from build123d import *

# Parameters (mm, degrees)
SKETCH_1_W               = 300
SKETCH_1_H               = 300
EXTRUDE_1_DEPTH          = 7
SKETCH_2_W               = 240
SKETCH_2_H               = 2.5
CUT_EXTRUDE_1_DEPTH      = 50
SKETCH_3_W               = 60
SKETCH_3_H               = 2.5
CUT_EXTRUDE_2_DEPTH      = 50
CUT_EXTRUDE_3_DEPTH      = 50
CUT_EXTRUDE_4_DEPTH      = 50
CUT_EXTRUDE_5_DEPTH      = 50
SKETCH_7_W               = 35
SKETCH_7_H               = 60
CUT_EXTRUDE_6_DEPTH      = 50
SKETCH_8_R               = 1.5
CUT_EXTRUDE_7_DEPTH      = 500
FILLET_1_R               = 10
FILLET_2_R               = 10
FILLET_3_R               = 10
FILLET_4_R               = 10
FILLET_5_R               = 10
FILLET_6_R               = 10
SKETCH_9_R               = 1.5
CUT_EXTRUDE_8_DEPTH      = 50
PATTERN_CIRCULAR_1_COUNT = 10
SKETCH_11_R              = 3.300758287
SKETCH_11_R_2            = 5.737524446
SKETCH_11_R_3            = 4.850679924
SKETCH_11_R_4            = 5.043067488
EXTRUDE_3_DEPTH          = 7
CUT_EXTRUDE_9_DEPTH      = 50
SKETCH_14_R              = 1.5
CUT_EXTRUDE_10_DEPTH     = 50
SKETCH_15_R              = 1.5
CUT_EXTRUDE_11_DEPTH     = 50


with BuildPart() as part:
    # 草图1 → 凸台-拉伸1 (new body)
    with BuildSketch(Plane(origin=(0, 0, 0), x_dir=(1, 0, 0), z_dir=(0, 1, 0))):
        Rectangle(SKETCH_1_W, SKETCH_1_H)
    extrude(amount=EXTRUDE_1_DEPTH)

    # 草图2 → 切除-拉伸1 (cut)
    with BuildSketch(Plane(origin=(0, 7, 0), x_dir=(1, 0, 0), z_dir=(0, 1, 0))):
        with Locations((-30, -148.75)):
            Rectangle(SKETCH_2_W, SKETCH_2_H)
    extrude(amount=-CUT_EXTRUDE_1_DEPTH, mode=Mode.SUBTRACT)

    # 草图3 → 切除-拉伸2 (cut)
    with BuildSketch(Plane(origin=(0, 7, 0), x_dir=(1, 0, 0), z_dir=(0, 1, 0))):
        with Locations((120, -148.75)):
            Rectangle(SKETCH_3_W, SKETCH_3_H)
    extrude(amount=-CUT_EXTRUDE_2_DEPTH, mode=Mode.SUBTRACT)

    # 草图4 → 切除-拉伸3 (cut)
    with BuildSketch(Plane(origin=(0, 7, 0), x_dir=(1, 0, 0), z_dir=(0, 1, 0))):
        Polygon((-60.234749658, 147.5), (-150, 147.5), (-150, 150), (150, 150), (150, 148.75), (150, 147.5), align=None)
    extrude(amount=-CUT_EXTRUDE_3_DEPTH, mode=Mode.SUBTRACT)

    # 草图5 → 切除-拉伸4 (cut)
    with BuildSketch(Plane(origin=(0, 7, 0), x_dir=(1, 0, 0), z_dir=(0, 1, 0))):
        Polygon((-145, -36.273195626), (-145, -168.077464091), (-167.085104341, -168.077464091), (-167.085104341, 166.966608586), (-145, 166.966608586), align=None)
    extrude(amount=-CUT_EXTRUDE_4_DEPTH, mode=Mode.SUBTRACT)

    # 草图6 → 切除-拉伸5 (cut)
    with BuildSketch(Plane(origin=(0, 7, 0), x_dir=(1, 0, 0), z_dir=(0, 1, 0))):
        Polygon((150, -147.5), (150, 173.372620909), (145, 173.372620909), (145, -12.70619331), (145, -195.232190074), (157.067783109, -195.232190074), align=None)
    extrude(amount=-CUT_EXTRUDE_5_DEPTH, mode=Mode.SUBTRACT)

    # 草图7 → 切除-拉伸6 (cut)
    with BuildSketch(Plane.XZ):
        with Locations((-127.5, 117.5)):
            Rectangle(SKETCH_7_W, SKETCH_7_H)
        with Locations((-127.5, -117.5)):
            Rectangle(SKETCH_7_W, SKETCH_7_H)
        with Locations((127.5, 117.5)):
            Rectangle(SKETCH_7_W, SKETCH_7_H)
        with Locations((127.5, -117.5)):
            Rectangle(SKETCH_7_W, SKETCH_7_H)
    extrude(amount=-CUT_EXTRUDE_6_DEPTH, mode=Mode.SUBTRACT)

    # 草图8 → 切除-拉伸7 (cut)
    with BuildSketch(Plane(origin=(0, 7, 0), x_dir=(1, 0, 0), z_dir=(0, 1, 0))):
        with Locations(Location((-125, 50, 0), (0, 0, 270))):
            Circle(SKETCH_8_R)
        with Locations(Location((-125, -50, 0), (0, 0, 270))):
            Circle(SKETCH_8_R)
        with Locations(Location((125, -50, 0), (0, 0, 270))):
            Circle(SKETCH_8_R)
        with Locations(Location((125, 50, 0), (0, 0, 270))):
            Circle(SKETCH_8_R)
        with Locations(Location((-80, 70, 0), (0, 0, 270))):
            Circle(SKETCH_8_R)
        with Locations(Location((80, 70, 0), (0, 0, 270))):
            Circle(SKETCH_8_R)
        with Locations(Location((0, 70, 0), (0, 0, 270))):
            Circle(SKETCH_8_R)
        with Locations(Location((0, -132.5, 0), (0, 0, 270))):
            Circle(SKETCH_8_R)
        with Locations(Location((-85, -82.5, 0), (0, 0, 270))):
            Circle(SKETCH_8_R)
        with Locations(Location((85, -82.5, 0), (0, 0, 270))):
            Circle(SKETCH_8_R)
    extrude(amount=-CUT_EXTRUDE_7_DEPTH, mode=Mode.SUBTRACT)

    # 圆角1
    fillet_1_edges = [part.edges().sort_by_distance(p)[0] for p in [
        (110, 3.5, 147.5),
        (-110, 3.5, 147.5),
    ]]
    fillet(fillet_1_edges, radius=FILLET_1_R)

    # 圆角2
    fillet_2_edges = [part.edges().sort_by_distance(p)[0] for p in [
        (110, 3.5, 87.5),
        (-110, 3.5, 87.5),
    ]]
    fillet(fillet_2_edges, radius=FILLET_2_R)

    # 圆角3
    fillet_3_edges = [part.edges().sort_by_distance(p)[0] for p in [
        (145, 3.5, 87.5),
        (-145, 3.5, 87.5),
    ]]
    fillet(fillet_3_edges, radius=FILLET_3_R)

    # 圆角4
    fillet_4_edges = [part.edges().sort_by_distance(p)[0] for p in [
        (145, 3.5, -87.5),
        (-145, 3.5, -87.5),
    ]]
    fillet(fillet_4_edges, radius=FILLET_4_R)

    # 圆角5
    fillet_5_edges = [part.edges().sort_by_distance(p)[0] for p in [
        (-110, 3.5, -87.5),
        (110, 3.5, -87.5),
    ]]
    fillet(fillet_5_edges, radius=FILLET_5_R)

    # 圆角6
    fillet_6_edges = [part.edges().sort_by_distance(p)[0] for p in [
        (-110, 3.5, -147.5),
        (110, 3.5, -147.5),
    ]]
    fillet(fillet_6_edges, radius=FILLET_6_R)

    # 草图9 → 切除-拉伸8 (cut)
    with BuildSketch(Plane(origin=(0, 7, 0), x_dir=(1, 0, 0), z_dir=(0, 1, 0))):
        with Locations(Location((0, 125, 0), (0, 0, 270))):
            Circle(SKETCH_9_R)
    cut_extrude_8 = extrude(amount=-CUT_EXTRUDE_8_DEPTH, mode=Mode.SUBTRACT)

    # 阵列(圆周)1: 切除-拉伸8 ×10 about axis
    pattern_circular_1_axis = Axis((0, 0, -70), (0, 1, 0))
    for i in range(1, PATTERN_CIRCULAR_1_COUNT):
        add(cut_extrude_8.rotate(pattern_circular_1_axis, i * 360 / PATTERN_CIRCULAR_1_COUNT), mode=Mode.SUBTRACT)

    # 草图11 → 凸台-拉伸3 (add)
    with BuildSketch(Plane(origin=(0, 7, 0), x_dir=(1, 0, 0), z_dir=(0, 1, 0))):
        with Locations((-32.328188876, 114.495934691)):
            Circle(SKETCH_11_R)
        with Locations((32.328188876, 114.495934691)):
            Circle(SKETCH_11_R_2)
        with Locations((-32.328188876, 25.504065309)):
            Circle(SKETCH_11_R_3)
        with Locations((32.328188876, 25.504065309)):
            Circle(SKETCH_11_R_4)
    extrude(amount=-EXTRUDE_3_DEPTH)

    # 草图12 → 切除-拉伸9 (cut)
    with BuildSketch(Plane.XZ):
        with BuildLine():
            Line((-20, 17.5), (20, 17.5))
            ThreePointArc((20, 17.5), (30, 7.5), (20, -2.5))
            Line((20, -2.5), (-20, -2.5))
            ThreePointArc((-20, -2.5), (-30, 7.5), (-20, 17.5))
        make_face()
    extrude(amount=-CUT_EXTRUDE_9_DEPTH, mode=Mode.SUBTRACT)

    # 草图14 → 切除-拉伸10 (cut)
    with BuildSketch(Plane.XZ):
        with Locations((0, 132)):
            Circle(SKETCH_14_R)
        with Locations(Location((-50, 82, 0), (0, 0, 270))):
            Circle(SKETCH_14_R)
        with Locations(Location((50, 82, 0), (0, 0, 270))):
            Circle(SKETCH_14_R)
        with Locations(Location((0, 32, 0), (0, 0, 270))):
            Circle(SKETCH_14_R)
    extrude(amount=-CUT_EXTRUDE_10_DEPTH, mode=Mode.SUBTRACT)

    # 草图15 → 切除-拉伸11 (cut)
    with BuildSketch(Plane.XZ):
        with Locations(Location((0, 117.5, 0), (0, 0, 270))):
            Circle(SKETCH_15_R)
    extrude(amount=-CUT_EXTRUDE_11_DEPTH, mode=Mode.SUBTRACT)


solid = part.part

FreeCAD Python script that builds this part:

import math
import FreeCAD as App
import Part
import Sketcher
Q = App.Units.Quantity


def edges_at(feature, points):
    """Names of the edges that pass closest to the given points."""
    edges = feature.Shape.Edges
    near = lambda p: min(range(len(edges)), key=lambda i: edges[i].distToShape(Part.Vertex(*p))[0])
    return sorted({f"Edge{near(p) + 1}" for p in points})

doc = App.newDocument("Part")
body = doc.addObject("PartDesign::Body", "Body")

# Sketch on XZ plane
sketch1 = doc.addObject("Sketcher::SketchObject", "Sketch")
body.addObject(sketch1)
sketch1.AttachmentSupport = (doc.XZ_Plane, [""])
sketch1.MapMode = "FlatFace"
sketch1.addGeometry([
    Part.LineSegment(App.Vector(-150, -150, 0), App.Vector(-150, 150, 0)),
    Part.LineSegment(App.Vector(-150, 150, 0), App.Vector(150, 150, 0)),
    Part.LineSegment(App.Vector(150, 150, 0), App.Vector(150, -150, 0)),
    Part.LineSegment(App.Vector(150, -150, 0), App.Vector(-150, -150, 0)),
], False)
sketch1.addConstraint([
    Sketcher.Constraint("Coincident", 0, 2, 1, 1),
    Sketcher.Constraint("Coincident", 1, 2, 2, 1),
    Sketcher.Constraint("Coincident", 2, 2, 3, 1),
    Sketcher.Constraint("Coincident", 3, 2, 0, 1),
    Sketcher.Constraint("Vertical", 0),
    Sketcher.Constraint("Horizontal", 1),
    Sketcher.Constraint("Vertical", 2),
    Sketcher.Constraint("Horizontal", 3),
    Sketcher.Constraint("Symmetric", 0, 2, 2, 2, -1, 1),
    Sketcher.Constraint("Equal", 3, 0),
    Sketcher.Constraint("DistanceX", 1, 1, 1, 2, Q("300 mm")),
])
pad1 = doc.addObject("PartDesign::Pad", "Pad")
body.addObject(pad1)
pad1.Profile = sketch1
pad1.Length = 7
pad1.Reversed = True

# Sketch on XZ plane
sketch2 = doc.addObject("Sketcher::SketchObject", "Sketch001")
body.addObject(sketch2)
sketch2.AttachmentSupport = (doc.XZ_Plane, [""])
sketch2.MapMode = "FlatFace"
sketch2.AttachmentOffset = App.Placement(App.Vector(0, 0, -7), App.Rotation())
sketch2.addGeometry([
    Part.LineSegment(App.Vector(-150, 147.5, 0), App.Vector(-150, 150, 0)),
    Part.LineSegment(App.Vector(-150, 150, 0), App.Vector(90, 150, 0)),
    Part.LineSegment(App.Vector(90, 150, 0), App.Vector(90, 147.5, 0)),
    Part.LineSegment(App.Vector(90, 147.5, 0), App.Vector(-150, 147.5, 0)),
], False)
sketch2.addConstraint([
    Sketcher.Constraint("Coincident", 0, 2, 1, 1),
    Sketcher.Constraint("Coincident", 1, 2, 2, 1),
    Sketcher.Constraint("Coincident", 2, 2, 3, 1),
    Sketcher.Constraint("Coincident", 3, 2, 0, 1),
    Sketcher.Constraint("Vertical", 0),
    Sketcher.Constraint("Horizontal", 1),
    Sketcher.Constraint("Vertical", 2),
    Sketcher.Constraint("Horizontal", 3),
    Sketcher.Constraint("DistanceX", 1, 1, 1, 2, Q("240 mm")),
    Sketcher.Constraint("DistanceY", 0, 1, 0, 2, Q("2.5 mm")),
    Sketcher.Constraint("DistanceX", 0, 2, -1, 1, Q("150 mm")),
    Sketcher.Constraint("DistanceY", -1, 1, 0, 2, Q("150 mm")),
])
pocket1 = doc.addObject("PartDesign::Pocket", "Pocket")
body.addObject(pocket1)
pocket1.Profile = sketch2
pocket1.Length = 50
pocket1.Reversed = True

# Sketch on XZ plane
sketch3 = doc.addObject("Sketcher::SketchObject", "Sketch002")
body.addObject(sketch3)
sketch3.AttachmentSupport = (doc.XZ_Plane, [""])
sketch3.MapMode = "FlatFace"
sketch3.AttachmentOffset = App.Placement(App.Vector(0, 0, -7), App.Rotation())
sketch3.addGeometry([
    Part.LineSegment(App.Vector(90, 147.5, 0), App.Vector(90, 150, 0)),
    Part.LineSegment(App.Vector(90, 150, 0), App.Vector(150, 150, 0)),
    Part.LineSegment(App.Vector(150, 150, 0), App.Vector(150, 147.5, 0)),
    Part.LineSegment(App.Vector(150, 147.5, 0), App.Vector(90, 147.5, 0)),
], False)
sketch3.addConstraint([
    Sketcher.Constraint("Coincident", 0, 2, 1, 1),
    Sketcher.Constraint("Coincident", 1, 2, 2, 1),
    Sketcher.Constraint("Coincident", 2, 2, 3, 1),
    Sketcher.Constraint("Coincident", 3, 2, 0, 1),
    Sketcher.Constraint("Vertical", 0),
    Sketcher.Constraint("Horizontal", 1),
    Sketcher.Constraint("Vertical", 2),
    Sketcher.Constraint("Horizontal", 3),
    Sketcher.Constraint("DistanceX", 1, 1, 1, 2, Q("60 mm")),
    Sketcher.Constraint("DistanceY", 0, 1, 0, 2, Q("2.5 mm")),
    Sketcher.Constraint("DistanceX", -1, 1, 0, 2, Q("90 mm")),
    Sketcher.Constraint("DistanceY", -1, 1, 0, 2, Q("150 mm")),
])
pocket2 = doc.addObject("PartDesign::Pocket", "Pocket001")
body.addObject(pocket2)
pocket2.Profile = sketch3
pocket2.Length = 50
pocket2.Reversed = True

# Sketch on XZ plane
sketch4 = doc.addObject("Sketcher::SketchObject", "Sketch003")
body.addObject(sketch4)
sketch4.AttachmentSupport = (doc.XZ_Plane, [""])
sketch4.MapMode = "FlatFace"
sketch4.AttachmentOffset = App.Placement(App.Vector(0, 0, -7), App.Rotation())
sketch4.addGeometry([
    Part.LineSegment(App.Vector(-150, -147.5, 0), App.Vector(150, -147.5, 0)),
    Part.LineSegment(App.Vector(150, -147.5, 0), App.Vector(150, -150, 0)),
    Part.LineSegment(App.Vector(150, -150, 0), App.Vector(-150, -150, 0)),
    Part.LineSegment(App.Vector(-150, -150, 0), App.Vector(-150, -147.5, 0)),
], False)
sketch4.addConstraint([
    Sketcher.Constraint("Coincident", 0, 2, 1, 1),
    Sketcher.Constraint("Coincident", 1, 2, 2, 1),
    Sketcher.Constraint("Coincident", 2, 2, 3, 1),
    Sketcher.Constraint("Coincident", 3, 2, 0, 1),
    Sketcher.Constraint("Horizontal", 0),
    Sketcher.Constraint("Vertical", 1),
    Sketcher.Constraint("Horizontal", 2),
    Sketcher.Constraint("Vertical", 3),
    Sketcher.Constraint("DistanceX", 0, 1, 0, 2, Q("300 mm")),
    Sketcher.Constraint("DistanceY", 1, 2, 1, 1, Q("2.5 mm")),
    Sketcher.Constraint("DistanceX", -1, 1, 0, 2, Q("150 mm")),
    Sketcher.Constraint("DistanceY", 1, 2, -1, 1, Q("150 mm")),
])
pocket3 = doc.addObject("PartDesign::Pocket", "Pocket002")
body.addObject(pocket3)
pocket3.Profile = sketch4
pocket3.Length = 50
pocket3.Reversed = True

# Sketch on XZ plane
sketch5 = doc.addObject("Sketcher::SketchObject", "Sketch004")
body.addObject(sketch5)
sketch5.AttachmentSupport = (doc.XZ_Plane, [""])
sketch5.MapMode = "FlatFace"
sketch5.AttachmentOffset = App.Placement(App.Vector(0, 0, -7), App.Rotation())
sketch5.addGeometry([
    Part.LineSegment(App.Vector(-145, 168.077464, 0), App.Vector(-145, -166.966609, 0)),
    Part.LineSegment(App.Vector(-145, -166.966609, 0), App.Vector(-167.085104, -166.966609, 0)),
    Part.LineSegment(App.Vector(-167.085104, -166.966609, 0), App.Vector(-167.085104, 168.077464, 0)),
    Part.LineSegment(App.Vector(-167.085104, 168.077464, 0), App.Vector(-145, 168.077464, 0)),
], False)
sketch5.addConstraint([
    Sketcher.Constraint("Coincident", 0, 2, 1, 1),
    Sketcher.Constraint("Coincident", 1, 2, 2, 1),
    Sketcher.Constraint("Coincident", 2, 2, 3, 1),
    Sketcher.Constraint("Coincident", 3, 2, 0, 1),
    Sketcher.Constraint("Vertical", 0),
    Sketcher.Constraint("Horizontal", 1),
    Sketcher.Constraint("Vertical", 2),
    Sketcher.Constraint("Horizontal", 3),
    Sketcher.Constraint("DistanceX", 0, 2, -1, 1, Q("145 mm")),
    Sketcher.Constraint("DistanceX", 1, 2, 1, 1, Q("22.085104 mm")),
    Sketcher.Constraint("DistanceY", 0, 2, 0, 1, Q("335.044073 mm")),
    Sketcher.Constraint("DistanceY", 0, 2, -1, 1, Q("166.966609 mm")),
])
pocket4 = doc.addObject("PartDesign::Pocket", "Pocket003")
body.addObject(pocket4)
pocket4.Profile = sketch5
pocket4.Length = 50
pocket4.Reversed = True

# Sketch on XZ plane
sketch6 = doc.addObject("Sketcher::SketchObject", "Sketch005")
body.addObject(sketch6)
sketch6.AttachmentSupport = (doc.XZ_Plane, [""])
sketch6.MapMode = "FlatFace"
sketch6.AttachmentOffset = App.Placement(App.Vector(0, 0, -7), App.Rotation())
sketch6.addGeometry([
    Part.LineSegment(App.Vector(150, 147.5, 0), App.Vector(150, -173.372621, 0)),  # 0
    Part.LineSegment(App.Vector(150, -173.372621, 0), App.Vector(145, -173.372621, 0)),  # 1
    Part.LineSegment(App.Vector(145, -173.372621, 0), App.Vector(145, 195.23219, 0)),  # 2
    Part.LineSegment(App.Vector(145, 195.23219, 0), App.Vector(157.067783, 195.23219, 0)),  # 3
    Part.LineSegment(App.Vector(157.067783, 195.23219, 0), App.Vector(150, 147.5, 0)),  # 4
], False)
sketch6.addConstraint([
    Sketcher.Constraint("Coincident", 0, 2, 1, 1),
    Sketcher.Constraint("Coincident", 1, 2, 2, 1),
    Sketcher.Constraint("Coincident", 2, 2, 3, 1),
    Sketcher.Constraint("Coincident", 3, 2, 4, 1),
    Sketcher.Constraint("Coincident", 4, 2, 0, 1),
    Sketcher.Constraint("Vertical", 0),
    Sketcher.Constraint("Horizontal", 1),
    Sketcher.Constraint("Vertical", 2),
    Sketcher.Constraint("Horizontal", 3),
    Sketcher.Constraint("DistanceX", 1, 2, 1, 1, Q("5 mm")),
    Sketcher.Constraint("DistanceX", -1, 1, 0, 2, Q("150 mm")),
    Sketcher.Constraint("DistanceY", -1, 1, 4, 2, Q("147.5 mm")),
    Sketcher.Constraint("DistanceY", 0, 2, 0, 1, Q("320.872621 mm")),
    Sketcher.Constraint("DistanceY", 2, 1, 2, 2, Q("368.604811 mm")),
    Sketcher.Constraint("Distance", 4, Q("48.252622 mm")),
])
pocket5 = doc.addObject("PartDesign::Pocket", "Pocket004")
body.addObject(pocket5)
pocket5.Profile = sketch6
pocket5.Length = 50
pocket5.Reversed = True

# Sketch on XZ plane
sketch7 = doc.addObject("Sketcher::SketchObject", "Sketch006")
body.addObject(sketch7)
sketch7.AttachmentSupport = (doc.XZ_Plane, [""])
sketch7.MapMode = "FlatFace"
sketch7.addGeometry([
    Part.LineSegment(App.Vector(-145, 147.5, 0), App.Vector(-145, 87.5, 0)),  # 0
    Part.LineSegment(App.Vector(-145, 87.5, 0), App.Vector(-110, 87.5, 0)),  # 1
    Part.LineSegment(App.Vector(-110, 87.5, 0), App.Vector(-110, 147.5, 0)),  # 2
    Part.LineSegment(App.Vector(-110, 147.5, 0), App.Vector(-145, 147.5, 0)),  # 3
    Part.LineSegment(App.Vector(-145, -87.5, 0), App.Vector(-145, -147.5, 0)),  # 4
    Part.LineSegment(App.Vector(-145, -147.5, 0), App.Vector(-110, -147.5, 0)),  # 5
    Part.LineSegment(App.Vector(-110, -147.5, 0), App.Vector(-110, -87.5, 0)),  # 6
    Part.LineSegment(App.Vector(-110, -87.5, 0), App.Vector(-145, -87.5, 0)),  # 7
    Part.LineSegment(App.Vector(110, 147.5, 0), App.Vector(110, 87.5, 0)),  # 8
    Part.LineSegment(App.Vector(110, 87.5, 0), App.Vector(145, 87.5, 0)),  # 9
    Part.LineSegment(App.Vector(145, 87.5, 0), App.Vector(145, 147.5, 0)),  # 10
    Part.LineSegment(App.Vector(145, 147.5, 0), App.Vector(110, 147.5, 0)),  # 11
    Part.LineSegment(App.Vector(110, -87.5, 0), App.Vector(110, -147.5, 0)),  # 12
    Part.LineSegment(App.Vector(110, -147.5, 0), App.Vector(145, -147.5, 0)),  # 13
    Part.LineSegment(App.Vector(145, -147.5, 0), App.Vector(145, -87.5, 0)),  # 14
    Part.LineSegment(App.Vector(145, -87.5, 0), App.Vector(110, -87.5, 0)),  # 15
], False)
sketch7.addConstraint([
    Sketcher.Constraint("Coincident", 0, 2, 1, 1),
    Sketcher.Constraint("Coincident", 1, 2, 2, 1),
    Sketcher.Constraint("Coincident", 2, 2, 3, 1),
    Sketcher.Constraint("Coincident", 3, 2, 0, 1),
    Sketcher.Constraint("Coincident", 4, 2, 5, 1),
    Sketcher.Constraint("Coincident", 5, 2, 6, 1),
    Sketcher.Constraint("Coincident", 6, 2, 7, 1),
    Sketcher.Constraint("Coincident", 7, 2, 4, 1),
    Sketcher.Constraint("Coincident", 8, 2, 9, 1),
    Sketcher.Constraint("Coincident", 9, 2, 10, 1),
    Sketcher.Constraint("Coincident", 10, 2, 11, 1),
    Sketcher.Constraint("Coincident", 11, 2, 8, 1),
    Sketcher.Constraint("Coincident", 12, 2, 13, 1),
    Sketcher.Constraint("Coincident", 13, 2, 14, 1),
    Sketcher.Constraint("Coincident", 14, 2, 15, 1),
    Sketcher.Constraint("Coincident", 15, 2, 12, 1),
    Sketcher.Constraint("Vertical", 0),
    Sketcher.Constraint("Horizontal", 1),
    Sketcher.Constraint("Vertical", 2),
    Sketcher.Constraint("Horizontal", 3),
    Sketcher.Constraint("Vertical", 4),
    Sketcher.Constraint("Horizontal", 5),
    Sketcher.Constraint("Vertical", 6),
    Sketcher.Constraint("Horizontal", 7),
    Sketcher.Constraint("Vertical", 8),
    Sketcher.Constraint("Horizontal", 9),
    Sketcher.Constraint("Vertical", 10),
    Sketcher.Constraint("Horizontal", 11),
    Sketcher.Constraint("Vertical", 12),
    Sketcher.Constraint("Horizontal", 13),
    Sketcher.Constraint("Vertical", 14),
    Sketcher.Constraint("Horizontal", 15),
    Sketcher.Constraint("Symmetric", 6, 2, 8, 2, -1, 1),
    Sketcher.Constraint("Symmetric", 4, 2, 10, 2, -1, 1),
    Sketcher.Constraint("Symmetric", 2, 2, 12, 2, -1, 1),
    Sketcher.Constraint("Symmetric", 0, 2, 14, 2, -1, 1),
    Sketcher.Constraint("Symmetric", 1, 2, 8, 2, -2),
    Sketcher.Constraint("Symmetric", 3, 2, 10, 2, -2),
    Sketcher.Constraint("DistanceX", 1, 1, 1, 2, Q("35 mm")),
    Sketcher.Constraint("DistanceY", 0, 2, 0, 1, Q("60 mm")),
    Sketcher.Constraint("DistanceX", 0, 2, -1, 1, Q("145 mm")),
    Sketcher.Constraint("DistanceY", 4, 2, 0, 2, Q("235 mm")),
])
pocket6 = doc.addObject("PartDesign::Pocket", "Pocket005")
body.addObject(pocket6)
pocket6.Profile = sketch7
pocket6.Length = 50

# Sketch on XZ plane
sketch8 = doc.addObject("Sketcher::SketchObject", "Sketch007")
body.addObject(sketch8)
sketch8.AttachmentSupport = (doc.XZ_Plane, [""])
sketch8.MapMode = "FlatFace"
sketch8.AttachmentOffset = App.Placement(App.Vector(0, 0, -7), App.Rotation())
sketch8.addGeometry([
    Part.Circle(App.Vector(-125, -50, 0), App.Vector(0, 0, 1), 1.5),  # 0
    Part.Circle(App.Vector(-125, 50, 0), App.Vector(0, 0, 1), 1.5),  # 1
    Part.Circle(App.Vector(125, 50, 0), App.Vector(0, 0, 1), 1.5),  # 2
    Part.Circle(App.Vector(125, -50, 0), App.Vector(0, 0, 1), 1.5),  # 3
    Part.Circle(App.Vector(-80, -70, 0), App.Vector(0, 0, 1), 1.5),  # 4
    Part.Circle(App.Vector(80, -70, 0), App.Vector(0, 0, 1), 1.5),  # 5
    Part.Circle(App.Vector(0, -70, 0), App.Vector(0, 0, 1), 1.5),  # 6
    Part.Circle(App.Vector(0, 132.5, 0), App.Vector(0, 0, 1), 1.5),  # 7
    Part.Circle(App.Vector(-85, 82.5, 0), App.Vector(0, 0, 1), 1.5),  # 8
    Part.Circle(App.Vector(85, 82.5, 0), App.Vector(0, 0, 1), 1.5),  # 9
], False)
sketch8.addConstraint([
    Sketcher.Constraint("Equal", 0, 1),
    Sketcher.Constraint("Equal", 1, 2),
    Sketcher.Constraint("Equal", 2, 3),
    Sketcher.Constraint("Equal", 3, 4),
    Sketcher.Constraint("Equal", 4, 5),
    Sketcher.Constraint("Equal", 5, 6),
    Sketcher.Constraint("Equal", 6, 7),
    Sketcher.Constraint("Equal", 7, 8),
    Sketcher.Constraint("Equal", 8, 9),
    Sketcher.Constraint("Symmetric", 0, 3, 2, 3, -1, 1),
    Sketcher.Constraint("Symmetric", 1, 3, 3, 3, -1, 1),
    Sketcher.Constraint("Symmetric", 1, 3, 2, 3, -2),
    Sketcher.Constraint("Symmetric", 4, 3, 5, 3, -2),
    Sketcher.Constraint("Symmetric", 8, 3, 9, 3, -2),
    Sketcher.Constraint("PointOnObject", 6, 3, -2),
    Sketcher.Constraint("PointOnObject", 7, 3, -2),
    Sketcher.Constraint("Horizontal", 5, 3, 6, 3),
    Sketcher.Constraint("Diameter", 0, Q("3 mm")),
    Sketcher.Constraint("DistanceX", 0, 3, -1, 1, Q("125 mm")),
    Sketcher.Constraint("DistanceY", 0, 3, -1, 1, Q("50 mm")),
    Sketcher.Constraint("DistanceX", 4, 3, -1, 1, Q("80 mm")),
    Sketcher.Constraint("DistanceY", 4, 3, -1, 1, Q("70 mm")),
    Sketcher.Constraint("DistanceX", 8, 3, -1, 1, Q("85 mm")),
    Sketcher.Constraint("DistanceY", 8, 3, 7, 3, Q("50 mm")),
    Sketcher.Constraint("DistanceY", -1, 1, 7, 3, Q("132.5 mm")),
])
pocket7 = doc.addObject("PartDesign::Pocket", "Pocket006")
body.addObject(pocket7)
pocket7.Profile = sketch8
pocket7.Length = 500
pocket7.Reversed = True
doc.recompute()

fillet = doc.addObject("PartDesign::Fillet", "Fillet")
body.addObject(fillet)
fillet.Base = (pocket7, edges_at(pocket7, [(110, 3.5, 147.5), (-110, 3.5, 147.5)]))
fillet.Radius = 10
doc.recompute()

fillet2 = doc.addObject("PartDesign::Fillet", "Fillet001")
body.addObject(fillet2)
fillet2.Base = (fillet, edges_at(fillet, [(110, 3.5, 87.5), (-110, 3.5, 87.5)]))
fillet2.Radius = 10
doc.recompute()

fillet3 = doc.addObject("PartDesign::Fillet", "Fillet002")
body.addObject(fillet3)
fillet3.Base = (fillet2, edges_at(fillet2, [(145, 3.5, 87.5), (-145, 3.5, 87.5)]))
fillet3.Radius = 10
doc.recompute()

fillet4 = doc.addObject("PartDesign::Fillet", "Fillet003")
body.addObject(fillet4)
fillet4.Base = (fillet3, edges_at(fillet3, [(145, 3.5, -87.5), (-145, 3.5, -87.5)]))
fillet4.Radius = 10
doc.recompute()

fillet5 = doc.addObject("PartDesign::Fillet", "Fillet004")
body.addObject(fillet5)
fillet5.Base = (fillet4, edges_at(fillet4, [(-110, 3.5, -87.5), (110, 3.5, -87.5)]))
fillet5.Radius = 10
doc.recompute()

fillet6 = doc.addObject("PartDesign::Fillet", "Fillet005")
body.addObject(fillet6)
fillet6.Base = (fillet5, edges_at(fillet5, [(-110, 3.5, -147.5), (110, 3.5, -147.5)]))
fillet6.Radius = 10

# Sketch on XZ plane
sketch9 = doc.addObject("Sketcher::SketchObject", "Sketch008")
body.addObject(sketch9)
sketch9.AttachmentSupport = (doc.XZ_Plane, [""])
sketch9.MapMode = "FlatFace"
sketch9.AttachmentOffset = App.Placement(App.Vector(0, 0, -7), App.Rotation())
sketch9.addGeometry(Part.Circle(App.Vector(0, -125, 0), App.Vector(0, 0, 1), 1.5), False)
sketch9.addConstraint([
    Sketcher.Constraint("PointOnObject", 0, 3, -2),
    Sketcher.Constraint("Diameter", 0, Q("3 mm")),
    Sketcher.Constraint("DistanceY", 0, 3, -1, 1, Q("125 mm")),
])
pocket8 = doc.addObject("PartDesign::Pocket", "Pocket007")
body.addObject(pocket8)
pocket8.Profile = sketch9
pocket8.Length = 50
pocket8.Reversed = True
doc.recompute()

datumline = doc.addObject("PartDesign::Line", "DatumLine")
body.addObject(datumline)
datumline.Placement = App.Placement(App.Vector(0, 0, -70), App.Rotation(App.Vector(0, 0, 1), App.Vector(0, 1, 0)))
polarpattern = doc.addObject("PartDesign::PolarPattern", "PolarPattern")
body.addObject(polarpattern)
polarpattern.Originals = [pocket8]
polarpattern.Axis = (datumline, [""])
polarpattern.Angle = 360
polarpattern.Occurrences = 10
body.Tip = polarpattern

# Sketch on XZ plane
sketch10 = doc.addObject("Sketcher::SketchObject", "Sketch009")
body.addObject(sketch10)
sketch10.AttachmentSupport = (doc.XZ_Plane, [""])
sketch10.MapMode = "FlatFace"
sketch10.AttachmentOffset = App.Placement(App.Vector(0, 0, -7), App.Rotation())
sketch10.addGeometry([
    Part.Circle(App.Vector(-32.328189, -114.495935, 0), App.Vector(0, 0, 1), 3.300758),
    Part.Circle(App.Vector(32.328189, -114.495935, 0), App.Vector(0, 0, 1), 5.737524),
    Part.Circle(App.Vector(-32.328189, -25.504065, 0), App.Vector(0, 0, 1), 4.85068),
    Part.Circle(App.Vector(32.328189, -25.504065, 0), App.Vector(0, 0, 1), 5.043067),
], False)
sketch10.addConstraint([
    Sketcher.Constraint("Symmetric", 0, 3, 1, 3, -2),
    Sketcher.Constraint("Symmetric", 2, 3, 3, 3, -2),
    Sketcher.Constraint("Vertical", 0, 3, 2, 3),
    Sketcher.Constraint("Diameter", 1, Q("11.475049 mm")),
    Sketcher.Constraint("Diameter", 2, Q("9.70136 mm")),
    Sketcher.Constraint("Diameter", 0, Q("6.601517 mm")),
    Sketcher.Constraint("Diameter", 3, Q("10.086135 mm")),
    Sketcher.Constraint("DistanceX", 0, 3, -1, 1, Q("32.328189 mm")),
    Sketcher.Constraint("DistanceY", 0, 3, 2, 3, Q("88.991869 mm")),
    Sketcher.Constraint("DistanceY", 0, 3, -1, 1, Q("114.495935 mm")),
])
pad2 = doc.addObject("PartDesign::Pad", "Pad001")
body.addObject(pad2)
pad2.Profile = sketch10
pad2.Length = 7

# Sketch on XZ plane
sketch11 = doc.addObject("Sketcher::SketchObject", "Sketch010")
body.addObject(sketch11)
sketch11.AttachmentSupport = (doc.XZ_Plane, [""])
sketch11.MapMode = "FlatFace"
sketch11.addGeometry([
    Part.LineSegment(App.Vector(20, 17.5, 0), App.Vector(-20, 17.5, 0)),
    Part.ArcOfCircle(Part.Circle(App.Vector(-20, 7.5, 0), App.Vector(0, 0, 1), 10), math.radians(90), math.radians(270)),
    Part.LineSegment(App.Vector(-20, -2.5, 0), App.Vector(20, -2.5, 0)),
    Part.ArcOfCircle(Part.Circle(App.Vector(20, 7.5, 0), App.Vector(0, 0, 1), 10), math.radians(-90), math.radians(90)),
], False)
sketch11.addConstraint([
    Sketcher.Constraint("Tangent", 0, 2, 1, 1),
    Sketcher.Constraint("Tangent", 1, 2, 2, 1),
    Sketcher.Constraint("Tangent", 2, 2, 3, 1),
    Sketcher.Constraint("Tangent", 3, 2, 0, 1),
    Sketcher.Constraint("Horizontal", 0),
    Sketcher.Constraint("Horizontal", 2),
    Sketcher.Constraint("Radius", 1, Q("10 mm")),
    Sketcher.Constraint("DistanceX", 0, 2, 0, 1, Q("40 mm")),
    Sketcher.Constraint("DistanceX", 1, 3, -1, 1, Q("20 mm")),
    Sketcher.Constraint("DistanceY", -1, 1, 1, 3, Q("7.5 mm")),
])
pocket9 = doc.addObject("PartDesign::Pocket", "Pocket008")
body.addObject(pocket9)
pocket9.Profile = sketch11
pocket9.Length = 50

# Sketch on XZ plane
sketch12 = doc.addObject("Sketcher::SketchObject", "Sketch011")
body.addObject(sketch12)
sketch12.AttachmentSupport = (doc.XZ_Plane, [""])
sketch12.MapMode = "FlatFace"
sketch12.addGeometry([
    Part.Circle(App.Vector(0, 132, 0), App.Vector(0, 0, 1), 1.5),
    Part.Circle(App.Vector(-50, 82, 0), App.Vector(0, 0, 1), 1.5),
    Part.Circle(App.Vector(50, 82, 0), App.Vector(0, 0, 1), 1.5),
    Part.Circle(App.Vector(0, 32, 0), App.Vector(0, 0, 1), 1.5),
], False)
sketch12.addConstraint([
    Sketcher.Constraint("Equal", 0, 1),
    Sketcher.Constraint("Equal", 1, 2),
    Sketcher.Constraint("Equal", 2, 3),
    Sketcher.Constraint("Symmetric", 1, 3, 2, 3, -2),
    Sketcher.Constraint("PointOnObject", 0, 3, -2),
    Sketcher.Constraint("PointOnObject", 3, 3, -2),
    Sketcher.Constraint("Diameter", 0, Q("3 mm")),
    Sketcher.Constraint("DistanceY", -1, 1, 0, 3, Q("132 mm")),
    Sketcher.Constraint("DistanceX", 1, 3, -1, 1, Q("50 mm")),
    Sketcher.Constraint("DistanceY", -1, 1, 1, 3, Q("82 mm")),
    Sketcher.Constraint("DistanceY", -1, 1, 3, 3, Q("32 mm")),
])
pocket10 = doc.addObject("PartDesign::Pocket", "Pocket009")
body.addObject(pocket10)
pocket10.Profile = sketch12
pocket10.Length = 50

# Sketch on XZ plane
sketch13 = doc.addObject("Sketcher::SketchObject", "Sketch012")
body.addObject(sketch13)
sketch13.AttachmentSupport = (doc.XZ_Plane, [""])
sketch13.MapMode = "FlatFace"
sketch13.addGeometry(Part.Circle(App.Vector(0, 117.5, 0), App.Vector(0, 0, 1), 1.5), False)
sketch13.addConstraint([
    Sketcher.Constraint("PointOnObject", 0, 3, -2),
    Sketcher.Constraint("Diameter", 0, Q("3 mm")),
    Sketcher.Constraint("DistanceY", -1, 1, 0, 3, Q("117.5 mm")),
])
pocket11 = doc.addObject("PartDesign::Pocket", "Pocket010")
body.addObject(pocket11)
pocket11.Profile = sketch13
pocket11.Length = 50

doc.recompute()
